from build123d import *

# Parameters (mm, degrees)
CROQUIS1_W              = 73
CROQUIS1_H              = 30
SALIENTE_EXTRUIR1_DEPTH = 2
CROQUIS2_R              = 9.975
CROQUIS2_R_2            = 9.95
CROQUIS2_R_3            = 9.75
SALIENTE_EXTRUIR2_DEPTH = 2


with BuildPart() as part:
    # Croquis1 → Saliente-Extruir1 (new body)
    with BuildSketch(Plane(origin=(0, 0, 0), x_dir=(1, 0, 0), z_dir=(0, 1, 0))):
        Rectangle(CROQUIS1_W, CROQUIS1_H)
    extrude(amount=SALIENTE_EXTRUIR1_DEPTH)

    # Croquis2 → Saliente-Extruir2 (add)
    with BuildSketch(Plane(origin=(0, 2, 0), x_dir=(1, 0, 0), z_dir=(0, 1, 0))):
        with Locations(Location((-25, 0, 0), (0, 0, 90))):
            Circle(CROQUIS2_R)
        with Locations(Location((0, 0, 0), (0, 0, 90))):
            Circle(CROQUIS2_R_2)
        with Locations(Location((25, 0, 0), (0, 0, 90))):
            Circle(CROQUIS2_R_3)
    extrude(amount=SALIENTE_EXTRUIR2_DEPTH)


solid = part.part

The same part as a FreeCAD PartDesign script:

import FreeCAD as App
import Part
import Sketcher


def add_polygon(sketch, points):
    """Adds a closed chain of lines whose ends are joined by coincident constraints."""
    first, n = sketch.GeometryCount, len(points)
    for a, b in zip(points, points[1:] + points[:1]):
        sketch.addGeometry(Part.LineSegment(App.Vector(*a, 0), App.Vector(*b, 0)), False)
    for i in range(n):
        sketch.addConstraint(Sketcher.Constraint("Coincident", first + i, 2, first + (i + 1) % n, 1))

doc = App.newDocument("Part")
body = doc.addObject("PartDesign::Body", "Body")

sketch1 = body.newObject("Sketcher::SketchObject", "Sketch")
sketch1.AttachmentSupport = (doc.getObject("XZ_Plane"), [""])
sketch1.MapMode = "FlatFace"
add_polygon(sketch1, [(-36, -15), (-36, 15), (36, 15), (36, -15)])
sketch1.addConstraint(Sketcher.Constraint("Vertical", 0))
sketch1.addConstraint(Sketcher.Constraint("Horizontal", 1))
sketch1.addConstraint(Sketcher.Constraint("Vertical", 2))
sketch1.addConstraint(Sketcher.Constraint("Horizontal", 3))
sketch1.addConstraint(Sketcher.Constraint("Symmetric", 0, 2, 2, 2, -1, 1))
sketch1.addConstraint(Sketcher.Constraint("DistanceX", 1, 1, 1, 2, 73.0))
sketch1.addConstraint(Sketcher.Constraint("DistanceY", 0, 1, 0, 2, 30.0))
pad1 = body.newObject("PartDesign::Pad", "Pad")
pad1.Profile = sketch1
pad1.Length = 2
pad1.Reversed = True

sketch2 = body.newObject("Sketcher::SketchObject", "Sketch001")
sketch2.AttachmentSupport = (doc.getObject("XZ_Plane"), [""])
sketch2.MapMode = "FlatFace"
sketch2.AttachmentOffset = App.Placement(App.Vector(0, 0, -2), App.Rotation())
sketch2.addGeometry(Part.Circle(App.Vector(-25, 0, 0), App.Vector(0, 0, 1), 10), False)
sketch2.addGeometry(Part.Circle(App.Vector(0, 0, 0), App.Vector(0, 0, 1), 10), False)
sketch2.addGeometry(Part.Circle(App.Vector(25, 0, 0), App.Vector(0, 0, 1), 10), False)
sketch2.addConstraint(Sketcher.Constraint("Coincident", 1, 3, -1, 1))
sketch2.addConstraint(Sketcher.Constraint("Symmetric", 0, 3, 2, 3, -1, 1))
sketch2.addConstraint(Sketcher.Constraint("PointOnObject", 0, 3, -1))
sketch2.addConstraint(Sketcher.Constraint("Diameter", 1, 19.9))
sketch2.addConstraint(Sketcher.Constraint("Diameter", 2, 19.5))
sketch2.addConstraint(Sketcher.Constraint("Diameter", 0, 19.95))
sketch2.addConstraint(Sketcher.Constraint("DistanceX", 0, 3, -1, 1, 25.0))
pad2 = body.newObject("PartDesign::Pad", "Pad001")
pad2.Profile = sketch2
pad2.Length = 2
pad2.Reversed = True

doc.recompute()
